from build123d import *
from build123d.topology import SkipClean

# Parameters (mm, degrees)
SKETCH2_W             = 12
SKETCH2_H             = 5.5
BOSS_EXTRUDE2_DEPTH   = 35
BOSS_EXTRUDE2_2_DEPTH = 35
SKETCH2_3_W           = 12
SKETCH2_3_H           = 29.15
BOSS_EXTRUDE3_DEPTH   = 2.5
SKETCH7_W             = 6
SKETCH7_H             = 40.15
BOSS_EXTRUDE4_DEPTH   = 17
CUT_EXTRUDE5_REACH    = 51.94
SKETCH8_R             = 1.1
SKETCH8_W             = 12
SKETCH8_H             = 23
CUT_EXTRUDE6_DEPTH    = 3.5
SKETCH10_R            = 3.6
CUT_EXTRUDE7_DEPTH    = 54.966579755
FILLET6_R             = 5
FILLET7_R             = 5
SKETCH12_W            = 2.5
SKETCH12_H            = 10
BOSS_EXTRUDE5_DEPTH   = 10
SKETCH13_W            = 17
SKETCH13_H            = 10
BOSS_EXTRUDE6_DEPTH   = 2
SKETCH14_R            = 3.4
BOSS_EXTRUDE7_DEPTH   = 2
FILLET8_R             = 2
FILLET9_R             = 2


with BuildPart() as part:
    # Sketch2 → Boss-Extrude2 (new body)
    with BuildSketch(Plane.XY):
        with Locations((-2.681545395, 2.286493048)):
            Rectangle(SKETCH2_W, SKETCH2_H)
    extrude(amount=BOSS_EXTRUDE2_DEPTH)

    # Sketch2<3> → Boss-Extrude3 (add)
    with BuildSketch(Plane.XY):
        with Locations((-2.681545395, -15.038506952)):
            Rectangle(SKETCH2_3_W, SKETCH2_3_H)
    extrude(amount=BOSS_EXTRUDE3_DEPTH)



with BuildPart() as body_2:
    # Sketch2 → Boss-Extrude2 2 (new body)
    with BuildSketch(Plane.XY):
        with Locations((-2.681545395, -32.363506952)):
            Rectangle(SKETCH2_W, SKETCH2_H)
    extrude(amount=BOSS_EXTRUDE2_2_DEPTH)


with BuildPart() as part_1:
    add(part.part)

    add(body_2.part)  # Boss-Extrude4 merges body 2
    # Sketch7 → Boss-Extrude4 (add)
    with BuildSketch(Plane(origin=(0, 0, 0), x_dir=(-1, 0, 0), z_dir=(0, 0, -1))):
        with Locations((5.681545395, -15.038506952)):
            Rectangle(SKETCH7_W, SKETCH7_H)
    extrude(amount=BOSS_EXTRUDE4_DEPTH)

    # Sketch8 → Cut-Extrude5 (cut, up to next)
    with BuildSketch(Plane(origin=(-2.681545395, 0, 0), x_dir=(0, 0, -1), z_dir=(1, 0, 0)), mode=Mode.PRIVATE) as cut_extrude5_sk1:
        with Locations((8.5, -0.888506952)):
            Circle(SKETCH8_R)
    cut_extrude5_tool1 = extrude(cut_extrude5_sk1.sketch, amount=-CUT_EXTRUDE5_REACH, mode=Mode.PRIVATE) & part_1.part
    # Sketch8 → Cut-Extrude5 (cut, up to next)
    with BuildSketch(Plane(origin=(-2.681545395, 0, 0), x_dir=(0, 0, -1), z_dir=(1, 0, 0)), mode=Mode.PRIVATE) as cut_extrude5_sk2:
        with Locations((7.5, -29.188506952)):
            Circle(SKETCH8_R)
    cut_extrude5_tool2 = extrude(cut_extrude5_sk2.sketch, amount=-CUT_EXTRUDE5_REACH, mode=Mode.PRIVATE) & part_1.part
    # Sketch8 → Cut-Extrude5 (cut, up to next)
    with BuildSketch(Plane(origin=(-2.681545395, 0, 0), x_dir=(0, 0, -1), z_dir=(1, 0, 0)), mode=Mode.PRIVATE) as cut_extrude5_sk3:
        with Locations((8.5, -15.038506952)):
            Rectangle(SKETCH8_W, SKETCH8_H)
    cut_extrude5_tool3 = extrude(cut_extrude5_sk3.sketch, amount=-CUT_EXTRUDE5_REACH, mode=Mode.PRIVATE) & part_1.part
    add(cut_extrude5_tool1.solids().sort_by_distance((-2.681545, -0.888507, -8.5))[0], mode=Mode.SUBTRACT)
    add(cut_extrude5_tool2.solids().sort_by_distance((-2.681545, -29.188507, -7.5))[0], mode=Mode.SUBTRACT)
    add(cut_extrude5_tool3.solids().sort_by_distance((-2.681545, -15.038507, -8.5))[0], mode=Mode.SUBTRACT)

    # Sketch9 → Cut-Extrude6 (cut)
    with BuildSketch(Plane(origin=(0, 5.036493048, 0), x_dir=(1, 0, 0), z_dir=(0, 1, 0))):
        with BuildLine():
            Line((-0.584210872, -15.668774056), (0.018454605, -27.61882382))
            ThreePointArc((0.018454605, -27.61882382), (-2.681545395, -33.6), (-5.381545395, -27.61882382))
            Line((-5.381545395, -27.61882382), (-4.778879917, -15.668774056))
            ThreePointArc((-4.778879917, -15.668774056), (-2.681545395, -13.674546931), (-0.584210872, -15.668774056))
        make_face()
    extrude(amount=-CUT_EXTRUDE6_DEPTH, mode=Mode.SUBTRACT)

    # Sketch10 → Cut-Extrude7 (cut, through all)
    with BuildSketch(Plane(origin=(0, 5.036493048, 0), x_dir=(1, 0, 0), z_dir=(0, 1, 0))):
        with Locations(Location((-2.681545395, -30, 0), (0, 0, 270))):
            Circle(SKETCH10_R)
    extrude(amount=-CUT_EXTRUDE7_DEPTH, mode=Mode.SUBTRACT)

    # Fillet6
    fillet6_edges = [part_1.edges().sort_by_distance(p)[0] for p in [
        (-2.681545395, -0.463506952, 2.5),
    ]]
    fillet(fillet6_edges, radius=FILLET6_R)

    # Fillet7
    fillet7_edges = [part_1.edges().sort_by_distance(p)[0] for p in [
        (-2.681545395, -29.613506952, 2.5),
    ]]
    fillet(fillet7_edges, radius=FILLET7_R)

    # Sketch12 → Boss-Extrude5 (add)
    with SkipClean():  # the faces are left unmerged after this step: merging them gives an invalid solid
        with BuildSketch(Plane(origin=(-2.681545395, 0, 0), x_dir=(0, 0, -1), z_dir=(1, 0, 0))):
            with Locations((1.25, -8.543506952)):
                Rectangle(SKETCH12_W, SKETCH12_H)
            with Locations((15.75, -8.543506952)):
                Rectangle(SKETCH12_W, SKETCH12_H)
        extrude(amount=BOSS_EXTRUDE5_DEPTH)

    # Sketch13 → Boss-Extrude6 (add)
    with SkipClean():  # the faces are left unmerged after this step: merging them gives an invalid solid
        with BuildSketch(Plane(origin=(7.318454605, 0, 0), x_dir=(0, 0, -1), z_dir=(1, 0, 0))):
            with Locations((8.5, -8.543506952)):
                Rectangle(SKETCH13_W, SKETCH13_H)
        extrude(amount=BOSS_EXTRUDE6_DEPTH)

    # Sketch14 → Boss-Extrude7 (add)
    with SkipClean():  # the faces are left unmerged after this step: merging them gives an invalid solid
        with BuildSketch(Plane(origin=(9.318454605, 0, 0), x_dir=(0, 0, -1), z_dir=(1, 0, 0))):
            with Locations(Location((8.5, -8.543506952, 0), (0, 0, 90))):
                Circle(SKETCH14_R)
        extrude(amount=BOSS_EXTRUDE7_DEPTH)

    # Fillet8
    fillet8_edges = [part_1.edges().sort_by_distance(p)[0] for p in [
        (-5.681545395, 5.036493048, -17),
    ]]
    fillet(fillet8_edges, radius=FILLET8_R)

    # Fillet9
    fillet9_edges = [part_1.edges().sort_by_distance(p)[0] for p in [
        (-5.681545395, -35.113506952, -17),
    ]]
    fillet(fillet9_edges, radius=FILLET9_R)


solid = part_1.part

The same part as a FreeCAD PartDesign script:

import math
import FreeCAD as App
import Part
import Sketcher
from FreeCAD import Vector


def edges_at(feature, points):
    """Names of the edges that pass closest to the given points."""
    edges = feature.Shape.Edges
    near = lambda p: min(range(len(edges)), key=lambda i: edges[i].distToShape(Part.Vertex(*p))[0])
    return sorted({f"Edge{near(p) + 1}" for p in points})

doc = App.newDocument("Part")
body = doc.addObject("PartDesign::Body", "Body")

# Sketch on XY plane
sketch1 = body.newObject("Sketcher::SketchObject", "Sketch")
sketch1.AttachmentSupport = (doc.getObject("XY_Plane"), [""])
sketch1.MapMode = "FlatFace"
sketch1.addGeometry(Part.LineSegment(Vector(-9, 5, 0), Vector(-9, 0, 0)), False)
sketch1.addGeometry(Part.LineSegment(Vector(-9, 0, 0), Vector(3, 0, 0)), False)
sketch1.addGeometry(Part.LineSegment(Vector(3, 0, 0), Vector(3, 5, 0)), False)
sketch1.addGeometry(Part.LineSegment(Vector(3, 5, 0), Vector(-9, 5, 0)), False)
sketch1.addConstraint(Sketcher.Constraint("Coincident", 0, 2, 1, 1))
sketch1.addConstraint(Sketcher.Constraint("Coincident", 1, 2, 2, 1))
sketch1.addConstraint(Sketcher.Constraint("Coincident", 2, 2, 3, 1))
sketch1.addConstraint(Sketcher.Constraint("Coincident", 3, 2, 0, 1))
sketch1.addConstraint(Sketcher.Constraint("Vertical", 0))
sketch1.addConstraint(Sketcher.Constraint("Horizontal", 1))
sketch1.addConstraint(Sketcher.Constraint("Vertical", 2))
sketch1.addConstraint(Sketcher.Constraint("Horizontal", 3))
sketch1.addConstraint(Sketcher.Constraint("DistanceX", 1, 1, 1, 2, 12.0))
sketch1.addConstraint(Sketcher.Constraint("DistanceY", 0, 2, 0, 1, 5.5))
sketch1.addConstraint(Sketcher.Constraint("DistanceX", 0, 2, -1, 1, 8.681545))
sketch1.addConstraint(Sketcher.Constraint("DistanceY", 0, 2, -1, 1, 0.463507))
pad1 = body.newObject("PartDesign::Pad", "Pad")
pad1.Profile = sketch1
pad1.Length = 35

# Sketch on XY plane
sketch2 = body.newObject("Sketcher::SketchObject", "Sketch001")
sketch2.AttachmentSupport = (doc.getObject("XY_Plane"), [""])
sketch2.MapMode = "FlatFace"
sketch2.addGeometry(Part.LineSegment(Vector(-9, 0, 0), Vector(-9, -30, 0)), False)
sketch2.addGeometry(Part.LineSegment(Vector(-9, -30, 0), Vector(3, -30, 0)), False)
sketch2.addGeometry(Part.LineSegment(Vector(3, -30, 0), Vector(3, 0, 0)), False)
sketch2.addGeometry(Part.LineSegment(Vector(3, 0, 0), Vector(-9, 0, 0)), False)
sketch2.addConstraint(Sketcher.Constraint("Coincident", 0, 2, 1, 1))
sketch2.addConstraint(Sketcher.Constraint("Coincident", 1, 2, 2, 1))
sketch2.addConstraint(Sketcher.Constraint("Coincident", 2, 2, 3, 1))
sketch2.addConstraint(Sketcher.Constraint("Coincident", 3, 2, 0, 1))
sketch2.addConstraint(Sketcher.Constraint("Vertical", 0))
sketch2.addConstraint(Sketcher.Constraint("Horizontal", 1))
sketch2.addConstraint(Sketcher.Constraint("Vertical", 2))
sketch2.addConstraint(Sketcher.Constraint("Horizontal", 3))
sketch2.addConstraint(Sketcher.Constraint("DistanceX", 1, 1, 1, 2, 12.0))
sketch2.addConstraint(Sketcher.Constraint("DistanceY", 0, 2, 0, 1, 29.15))
sketch2.addConstraint(Sketcher.Constraint("DistanceX", 0, 2, -1, 1, 8.681545))
sketch2.addConstraint(Sketcher.Constraint("DistanceY", 0, 2, -1, 1, 29.613507))
pad2 = body.newObject("PartDesign::Pad", "Pad001")
pad2.Profile = sketch2
pad2.Length = 2.5
body2 = doc.addObject("PartDesign::Body", "Body001")

# Sketch on XY plane
sketch3 = body2.newObject("Sketcher::SketchObject", "Sketch002")
sketch3.AttachmentSupport = (doc.getObject("XY_Plane001"), [""])
sketch3.MapMode = "FlatFace"
sketch3.addGeometry(Part.LineSegment(Vector(-9, -30, 0), Vector(-9, -35, 0)), False)
sketch3.addGeometry(Part.LineSegment(Vector(-9, -35, 0), Vector(3, -35, 0)), False)
sketch3.addGeometry(Part.LineSegment(Vector(3, -35, 0), Vector(3, -30, 0)), False)
sketch3.addGeometry(Part.LineSegment(Vector(3, -30, 0), Vector(-9, -30, 0)), False)
sketch3.addConstraint(Sketcher.Constraint("Coincident", 0, 2, 1, 1))
sketch3.addConstraint(Sketcher.Constraint("Coincident", 1, 2, 2, 1))
sketch3.addConstraint(Sketcher.Constraint("Coincident", 2, 2, 3, 1))
sketch3.addConstraint(Sketcher.Constraint("Coincident", 3, 2, 0, 1))
sketch3.addConstraint(Sketcher.Constraint("Vertical", 0))
sketch3.addConstraint(Sketcher.Constraint("Horizontal", 1))
sketch3.addConstraint(Sketcher.Constraint("Vertical", 2))
sketch3.addConstraint(Sketcher.Constraint("Horizontal", 3))
sketch3.addConstraint(Sketcher.Constraint("DistanceX", 1, 1, 1, 2, 12.0))
sketch3.addConstraint(Sketcher.Constraint("DistanceY", 0, 2, 0, 1, 5.5))
sketch3.addConstraint(Sketcher.Constraint("DistanceX", 0, 2, -1, 1, 8.681545))
sketch3.addConstraint(Sketcher.Constraint("DistanceY", 0, 2, -1, 1, 35.113507))
pad3 = body2.newObject("PartDesign::Pad", "Pad002")
pad3.Profile = sketch3
pad3.Length = 35
doc.recompute()

boolean = body.newObject("PartDesign::Boolean", "Boolean")
boolean.Type = "Fuse"
boolean.addObjects([body2])

# Sketch on XY plane
sketch4 = body.newObject("Sketcher::SketchObject", "Sketch003")
sketch4.AttachmentSupport = (doc.getObject("XY_Plane"), [""])
sketch4.MapMode = "FlatFace"
sketch4.addGeometry(Part.LineSegment(Vector(-3, 5, 0), Vector(-3, -35, 0)), False)
sketch4.addGeometry(Part.LineSegment(Vector(-3, -35, 0), Vector(-9, -35, 0)), False)
sketch4.addGeometry(Part.LineSegment(Vector(-9, -35, 0), Vector(-9, 5, 0)), False)
sketch4.addGeometry(Part.LineSegment(Vector(-9, 5, 0), Vector(-3, 5, 0)), False)
sketch4.addConstraint(Sketcher.Constraint("Coincident", 0, 2, 1, 1))
sketch4.addConstraint(Sketcher.Constraint("Coincident", 1, 2, 2, 1))
sketch4.addConstraint(Sketcher.Constraint("Coincident", 2, 2, 3, 1))
sketch4.addConstraint(Sketcher.Constraint("Coincident", 3, 2, 0, 1))
sketch4.addConstraint(Sketcher.Constraint("Vertical", 0))
sketch4.addConstraint(Sketcher.Constraint("Horizontal", 1))
sketch4.addConstraint(Sketcher.Constraint("Vertical", 2))
sketch4.addConstraint(Sketcher.Constraint("Horizontal", 3))
sketch4.addConstraint(Sketcher.Constraint("DistanceX", 1, 2, 1, 1, 6.0))
sketch4.addConstraint(Sketcher.Constraint("DistanceY", 0, 2, 0, 1, 40.15))
sketch4.addConstraint(Sketcher.Constraint("DistanceX", 0, 2, -1, 1, 2.681545))
sketch4.addConstraint(Sketcher.Constraint("DistanceY", 0, 2, -1, 1, 35.113507))
pad4 = body.newObject("PartDesign::Pad", "Pad003")
pad4.Profile = sketch4
pad4.Length = 17
pad4.Reversed = True

# Sketch on YZ plane
sketch5 = body.newObject("Sketcher::SketchObject", "Sketch004")
sketch5.AttachmentSupport = (doc.getObject("YZ_Plane"), [""])
sketch5.MapMode = "FlatFace"
sketch5.AttachmentOffset = App.Placement(Vector(0, 0, -2.681545), App.Rotation())
sketch5.addGeometry(Part.Circle(Vector(-0.9, -8.5, 0), Vector(0, 0, 1), 1.1), False)
sketch5.addConstraint(Sketcher.Constraint("Diameter", 0, 2.2))
sketch5.addConstraint(Sketcher.Constraint("DistanceY", 0, 3, -1, 1, 8.5))
sketch5.addConstraint(Sketcher.Constraint("DistanceX", 0, 3, -1, 1, 0.888507))
pocket1 = body.newObject("PartDesign::Pocket", "Pocket")
pocket1.Profile = sketch5
pocket1.Type = "UpToFirst"

# Sketch on YZ plane
sketch6 = body.newObject("Sketcher::SketchObject", "Sketch005")
sketch6.AttachmentSupport = (doc.getObject("YZ_Plane"), [""])
sketch6.MapMode = "FlatFace"
sketch6.AttachmentOffset = App.Placement(Vector(0, 0, -2.681545), App.Rotation())
sketch6.addGeometry(Part.Circle(Vector(-29.2, -7.5, 0), Vector(0, 0, 1), 1.1), False)
sketch6.addConstraint(Sketcher.Constraint("Diameter", 0, 2.2))
sketch6.addConstraint(Sketcher.Constraint("DistanceY", 0, 3, -1, 1, 7.5))
sketch6.addConstraint(Sketcher.Constraint("DistanceX", 0, 3, -1, 1, 29.188507))
pocket2 = body.newObject("PartDesign::Pocket", "Pocket001")
pocket2.Profile = sketch6
pocket2.Type = "UpToFirst"

# Sketch on YZ plane
sketch7 = body.newObject("Sketcher::SketchObject", "Sketch006")
sketch7.AttachmentSupport = (doc.getObject("YZ_Plane"), [""])
sketch7.MapMode = "FlatFace"
sketch7.AttachmentOffset = App.Placement(Vector(0, 0, -2.681545), App.Rotation())
sketch7.addGeometry(Part.LineSegment(Vector(-4, -2, 0), Vector(-27, -2, 0)), False)
sketch7.addGeometry(Part.LineSegment(Vector(-27, -2, 0), Vector(-27, -14, 0)), False)
sketch7.addGeometry(Part.LineSegment(Vector(-27, -14, 0), Vector(-4, -14, 0)), False)
sketch7.addGeometry(Part.LineSegment(Vector(-4, -14, 0), Vector(-4, -2, 0)), False)
sketch7.addConstraint(Sketcher.Constraint("Coincident", 0, 2, 1, 1))
sketch7.addConstraint(Sketcher.Constraint("Coincident", 1, 2, 2, 1))
sketch7.addConstraint(Sketcher.Constraint("Coincident", 2, 2, 3, 1))
sketch7.addConstraint(Sketcher.Constraint("Coincident", 3, 2, 0, 1))
sketch7.addConstraint(Sketcher.Constraint("Horizontal", 0))
sketch7.addConstraint(Sketcher.Constraint("Vertical", 1))
sketch7.addConstraint(Sketcher.Constraint("Horizontal", 2))
sketch7.addConstraint(Sketcher.Constraint("Vertical", 3))
sketch7.addConstraint(Sketcher.Constraint("DistanceX", 0, 2, 0, 1, 23.0))
sketch7.addConstraint(Sketcher.Constraint("DistanceY", 1, 2, 1, 1, 12.0))
sketch7.addConstraint(Sketcher.Constraint("DistanceY", 0, 2, -1, 1, 2.5))
sketch7.addConstraint(Sketcher.Constraint("DistanceX", 0, 2, -1, 1, 26.538507))
pocket3 = body.newObject("PartDesign::Pocket", "Pocket002")
pocket3.Profile = sketch7
pocket3.Type = "UpToFirst"

# Sketch on XZ plane
sketch8 = body.newObject("Sketcher::SketchObject", "Sketch007")
sketch8.AttachmentSupport = (doc.getObject("XZ_Plane"), [""])
sketch8.MapMode = "FlatFace"
sketch8.AttachmentOffset = App.Placement(Vector(0, 0, -5.036493), App.Rotation())
sketch8.addGeometry(Part.LineSegment(Vector(0, 27.6, 0), Vector(-0.6, 15.7, 0)), False)
sketch8.addGeometry(Part.ArcOfCircle(Part.Circle(Vector(-2.7, 15.8, 0), Vector(0, 0, 1), 2.1), math.radians(-177), math.radians(-3)), False)
sketch8.addGeometry(Part.LineSegment(Vector(-4.8, 15.7, 0), Vector(-5.4, 27.6, 0)), False)
sketch8.addGeometry(Part.ArcOfCircle(Part.Circle(Vector(-2.7, 30, 0), Vector(0, 0, 1), 3.6), math.radians(-41), math.radians(221)), False)
sketch8.addConstraint(Sketcher.Constraint("Tangent", 0, 2, 1, 2))
sketch8.addConstraint(Sketcher.Constraint("Tangent", 1, 1, 2, 1))
sketch8.addConstraint(Sketcher.Constraint("Coincident", 2, 2, 3, 2))
sketch8.addConstraint(Sketcher.Constraint("Coincident", 3, 1, 0, 1))
sketch8.addConstraint(Sketcher.Constraint("Horizontal", 0, 2, 1, 1))
sketch8.addConstraint(Sketcher.Constraint("Horizontal", 2, 2, 3, 1))
sketch8.addConstraint(Sketcher.Constraint("Radius", 1, 2.1))
sketch8.addConstraint(Sketcher.Constraint("Radius", 3, 3.6))
sketch8.addConstraint(Sketcher.Constraint("DistanceY", -1, 1, 3, 3, 30.0))
sketch8.addConstraint(Sketcher.Constraint("DistanceX", 2, 2, 3, 3, 2.7))
sketch8.addConstraint(Sketcher.Constraint("DistanceX", 0, 2, -1, 1, 0.584211))
sketch8.addConstraint(Sketcher.Constraint("DistanceY", 1, 1, 2, 2, 11.95005))
pocket4 = body.newObject("PartDesign::Pocket", "Pocket003")
pocket4.Profile = sketch8
pocket4.Length = 3.5
pocket4.Reversed = True

# Sketch on XZ plane
sketch9 = body.newObject("Sketcher::SketchObject", "Sketch008")
sketch9.AttachmentSupport = (doc.getObject("XZ_Plane"), [""])
sketch9.MapMode = "FlatFace"
sketch9.AttachmentOffset = App.Placement(Vector(0, 0, -5.036493), App.Rotation())
sketch9.addGeometry(Part.Circle(Vector(-2.7, 30, 0), Vector(0, 0, 1), 3.6), False)
sketch9.addConstraint(Sketcher.Constraint("Diameter", 0, 7.2))
sketch9.addConstraint(Sketcher.Constraint("DistanceY", -1, 1, 0, 3, 30.0))
sketch9.addConstraint(Sketcher.Constraint("DistanceX", 0, 3, -1, 1, 2.681545))
pocket5 = body.newObject("PartDesign::Pocket", "Pocket004")
pocket5.Profile = sketch9
pocket5.Type = "ThroughAll"
pocket5.Reversed = True
doc.recompute()

fillet = body.newObject("PartDesign::Fillet", "Fillet")
fillet.Base = (pocket5, edges_at(pocket5, [(-2.682, -0.464, 2.5)]))
fillet.Radius = 5
doc.recompute()

fillet2 = body.newObject("PartDesign::Fillet", "Fillet001")
fillet2.Base = (fillet, edges_at(fillet, [(-2.682, -29.614, 2.5)]))
fillet2.Radius = 5

# Sketch on YZ plane
sketch10 = body.newObject("Sketcher::SketchObject", "Sketch009")
sketch10.AttachmentSupport = (doc.getObject("YZ_Plane"), [""])
sketch10.MapMode = "FlatFace"
sketch10.AttachmentOffset = App.Placement(Vector(0, 0, -2.681545), App.Rotation())
sketch10.addGeometry(Part.LineSegment(Vector(-3.5, 0, 0), Vector(-13.5, 0, 0)), False)
sketch10.addGeometry(Part.LineSegment(Vector(-13.5, 0, 0), Vector(-13.5, -2.5, 0)), False)
sketch10.addGeometry(Part.LineSegment(Vector(-13.5, -2.5, 0), Vector(-3.5, -2.5, 0)), False)
sketch10.addGeometry(Part.LineSegment(Vector(-3.5, -2.5, 0), Vector(-3.5, 0, 0)), False)
sketch10.addGeometry(Part.LineSegment(Vector(-3.5, -14.5, 0), Vector(-13.5, -14.5, 0)), False)
sketch10.addGeometry(Part.LineSegment(Vector(-13.5, -14.5, 0), Vector(-13.5, -17, 0)), False)
sketch10.addGeometry(Part.LineSegment(Vector(-13.5, -17, 0), Vector(-3.5, -17, 0)), False)
sketch10.addGeometry(Part.LineSegment(Vector(-3.5, -17, 0), Vector(-3.5, -14.5, 0)), False)
sketch10.addConstraint(Sketcher.Constraint("Coincident", 0, 2, 1, 1))
sketch10.addConstraint(Sketcher.Constraint("Coincident", 1, 2, 2, 1))
sketch10.addConstraint(Sketcher.Constraint("Coincident", 2, 2, 3, 1))
sketch10.addConstraint(Sketcher.Constraint("Coincident", 3, 2, 0, 1))
sketch10.addConstraint(Sketcher.Constraint("Coincident", 4, 2, 5, 1))
sketch10.addConstraint(Sketcher.Constraint("Coincident", 5, 2, 6, 1))
sketch10.addConstraint(Sketcher.Constraint("Coincident", 6, 2, 7, 1))
sketch10.addConstraint(Sketcher.Constraint("Coincident", 7, 2, 4, 1))
sketch10.addConstraint(Sketcher.Constraint("Horizontal", 0))
sketch10.addConstraint(Sketcher.Constraint("Vertical", 1))
sketch10.addConstraint(Sketcher.Constraint("Horizontal", 2))
sketch10.addConstraint(Sketcher.Constraint("Vertical", 3))
sketch10.addConstraint(Sketcher.Constraint("Horizontal", 4))
sketch10.addConstraint(Sketcher.Constraint("Vertical", 5))
sketch10.addConstraint(Sketcher.Constraint("Horizontal", 6))
sketch10.addConstraint(Sketcher.Constraint("Vertical", 7))
sketch10.addConstraint(Sketcher.Constraint("PointOnObject", 0, 2, -1))
sketch10.addConstraint(Sketcher.Constraint("Vertical", 1, 2, 4, 2))
sketch10.addConstraint(Sketcher.Constraint("Vertical", 3, 2, 6, 2))
sketch10.addConstraint(Sketcher.Constraint("Equal", 3, 5))
sketch10.addConstraint(Sketcher.Constraint("DistanceX", 0, 2, 0, 1, 10.0))
sketch10.addConstraint(Sketcher.Constraint("DistanceY", 1, 2, 1, 1, 2.5))
sketch10.addConstraint(Sketcher.Constraint("DistanceY", 5, 2, -1, 1, 17.0))
sketch10.addConstraint(Sketcher.Constraint("DistanceX", 0, 2, -1, 1, 13.543507))
pad5 = body.newObject("PartDesign::Pad", "Pad004")
pad5.Profile = sketch10
pad5.Length = 10

# Sketch on YZ plane
sketch11 = body.newObject("Sketcher::SketchObject", "Sketch010")
sketch11.AttachmentSupport = (doc.getObject("YZ_Plane"), [""])
sketch11.MapMode = "FlatFace"
sketch11.AttachmentOffset = App.Placement(Vector(0, 0, 7.318455), App.Rotation())
sketch11.addGeometry(Part.LineSegment(Vector(-4, 0, 0), Vector(-14, 0, 0)), False)
sketch11.addGeometry(Part.LineSegment(Vector(-14, 0, 0), Vector(-14, -17, 0)), False)
sketch11.addGeometry(Part.LineSegment(Vector(-14, -17, 0), Vector(-4, -17, 0)), False)
sketch11.addGeometry(Part.LineSegment(Vector(-4, -17, 0), Vector(-4, 0, 0)), False)
sketch11.addConstraint(Sketcher.Constraint("Coincident", 0, 2, 1, 1))
sketch11.addConstraint(Sketcher.Constraint("Coincident", 1, 2, 2, 1))
sketch11.addConstraint(Sketcher.Constraint("Coincident", 2, 2, 3, 1))
sketch11.addConstraint(Sketcher.Constraint("Coincident", 3, 2, 0, 1))
sketch11.addConstraint(Sketcher.Constraint("Horizontal", 0))
sketch11.addConstraint(Sketcher.Constraint("Vertical", 1))
sketch11.addConstraint(Sketcher.Constraint("Horizontal", 2))
sketch11.addConstraint(Sketcher.Constraint("Vertical", 3))
sketch11.addConstraint(Sketcher.Constraint("PointOnObject", 0, 2, -1))
sketch11.addConstraint(Sketcher.Constraint("DistanceX", 0, 2, 0, 1, 10.0))
sketch11.addConstraint(Sketcher.Constraint("DistanceY", 1, 2, 1, 1, 17.0))
sketch11.addConstraint(Sketcher.Constraint("DistanceX", 0, 2, -1, 1, 13.543507))
pad6 = body.newObject("PartDesign::Pad", "Pad005")
pad6.Profile = sketch11
pad6.Length = 2

# Sketch on YZ plane
sketch12 = body.newObject("Sketcher::SketchObject", "Sketch011")
sketch12.AttachmentSupport = (doc.getObject("YZ_Plane"), [""])
sketch12.MapMode = "FlatFace"
sketch12.AttachmentOffset = App.Placement(Vector(0, 0, 9.318455), App.Rotation())
sketch12.addGeometry(Part.Circle(Vector(-8.5, -8.5, 0), Vector(0, 0, 1), 3.4), False)
sketch12.addConstraint(Sketcher.Constraint("Diameter", 0, 6.8))
sketch12.addConstraint(Sketcher.Constraint("DistanceY", 0, 3, -1, 1, 8.5))
sketch12.addConstraint(Sketcher.Constraint("DistanceX", 0, 3, -1, 1, 8.543507))
pad7 = body.newObject("PartDesign::Pad", "Pad006")
pad7.Profile = sketch12
pad7.Length = 2
doc.recompute()

fillet3 = body.newObject("PartDesign::Fillet", "Fillet002")
fillet3.Base = (pad7, edges_at(pad7, [(-5.682, 5.036, -17)]))
fillet3.Radius = 2
doc.recompute()

fillet4 = body.newObject("PartDesign::Fillet", "Fillet003")
fillet4.Base = (fillet3, edges_at(fillet3, [(-5.682, -35.114, -17)]))
fillet4.Radius = 2

doc.recompute()
